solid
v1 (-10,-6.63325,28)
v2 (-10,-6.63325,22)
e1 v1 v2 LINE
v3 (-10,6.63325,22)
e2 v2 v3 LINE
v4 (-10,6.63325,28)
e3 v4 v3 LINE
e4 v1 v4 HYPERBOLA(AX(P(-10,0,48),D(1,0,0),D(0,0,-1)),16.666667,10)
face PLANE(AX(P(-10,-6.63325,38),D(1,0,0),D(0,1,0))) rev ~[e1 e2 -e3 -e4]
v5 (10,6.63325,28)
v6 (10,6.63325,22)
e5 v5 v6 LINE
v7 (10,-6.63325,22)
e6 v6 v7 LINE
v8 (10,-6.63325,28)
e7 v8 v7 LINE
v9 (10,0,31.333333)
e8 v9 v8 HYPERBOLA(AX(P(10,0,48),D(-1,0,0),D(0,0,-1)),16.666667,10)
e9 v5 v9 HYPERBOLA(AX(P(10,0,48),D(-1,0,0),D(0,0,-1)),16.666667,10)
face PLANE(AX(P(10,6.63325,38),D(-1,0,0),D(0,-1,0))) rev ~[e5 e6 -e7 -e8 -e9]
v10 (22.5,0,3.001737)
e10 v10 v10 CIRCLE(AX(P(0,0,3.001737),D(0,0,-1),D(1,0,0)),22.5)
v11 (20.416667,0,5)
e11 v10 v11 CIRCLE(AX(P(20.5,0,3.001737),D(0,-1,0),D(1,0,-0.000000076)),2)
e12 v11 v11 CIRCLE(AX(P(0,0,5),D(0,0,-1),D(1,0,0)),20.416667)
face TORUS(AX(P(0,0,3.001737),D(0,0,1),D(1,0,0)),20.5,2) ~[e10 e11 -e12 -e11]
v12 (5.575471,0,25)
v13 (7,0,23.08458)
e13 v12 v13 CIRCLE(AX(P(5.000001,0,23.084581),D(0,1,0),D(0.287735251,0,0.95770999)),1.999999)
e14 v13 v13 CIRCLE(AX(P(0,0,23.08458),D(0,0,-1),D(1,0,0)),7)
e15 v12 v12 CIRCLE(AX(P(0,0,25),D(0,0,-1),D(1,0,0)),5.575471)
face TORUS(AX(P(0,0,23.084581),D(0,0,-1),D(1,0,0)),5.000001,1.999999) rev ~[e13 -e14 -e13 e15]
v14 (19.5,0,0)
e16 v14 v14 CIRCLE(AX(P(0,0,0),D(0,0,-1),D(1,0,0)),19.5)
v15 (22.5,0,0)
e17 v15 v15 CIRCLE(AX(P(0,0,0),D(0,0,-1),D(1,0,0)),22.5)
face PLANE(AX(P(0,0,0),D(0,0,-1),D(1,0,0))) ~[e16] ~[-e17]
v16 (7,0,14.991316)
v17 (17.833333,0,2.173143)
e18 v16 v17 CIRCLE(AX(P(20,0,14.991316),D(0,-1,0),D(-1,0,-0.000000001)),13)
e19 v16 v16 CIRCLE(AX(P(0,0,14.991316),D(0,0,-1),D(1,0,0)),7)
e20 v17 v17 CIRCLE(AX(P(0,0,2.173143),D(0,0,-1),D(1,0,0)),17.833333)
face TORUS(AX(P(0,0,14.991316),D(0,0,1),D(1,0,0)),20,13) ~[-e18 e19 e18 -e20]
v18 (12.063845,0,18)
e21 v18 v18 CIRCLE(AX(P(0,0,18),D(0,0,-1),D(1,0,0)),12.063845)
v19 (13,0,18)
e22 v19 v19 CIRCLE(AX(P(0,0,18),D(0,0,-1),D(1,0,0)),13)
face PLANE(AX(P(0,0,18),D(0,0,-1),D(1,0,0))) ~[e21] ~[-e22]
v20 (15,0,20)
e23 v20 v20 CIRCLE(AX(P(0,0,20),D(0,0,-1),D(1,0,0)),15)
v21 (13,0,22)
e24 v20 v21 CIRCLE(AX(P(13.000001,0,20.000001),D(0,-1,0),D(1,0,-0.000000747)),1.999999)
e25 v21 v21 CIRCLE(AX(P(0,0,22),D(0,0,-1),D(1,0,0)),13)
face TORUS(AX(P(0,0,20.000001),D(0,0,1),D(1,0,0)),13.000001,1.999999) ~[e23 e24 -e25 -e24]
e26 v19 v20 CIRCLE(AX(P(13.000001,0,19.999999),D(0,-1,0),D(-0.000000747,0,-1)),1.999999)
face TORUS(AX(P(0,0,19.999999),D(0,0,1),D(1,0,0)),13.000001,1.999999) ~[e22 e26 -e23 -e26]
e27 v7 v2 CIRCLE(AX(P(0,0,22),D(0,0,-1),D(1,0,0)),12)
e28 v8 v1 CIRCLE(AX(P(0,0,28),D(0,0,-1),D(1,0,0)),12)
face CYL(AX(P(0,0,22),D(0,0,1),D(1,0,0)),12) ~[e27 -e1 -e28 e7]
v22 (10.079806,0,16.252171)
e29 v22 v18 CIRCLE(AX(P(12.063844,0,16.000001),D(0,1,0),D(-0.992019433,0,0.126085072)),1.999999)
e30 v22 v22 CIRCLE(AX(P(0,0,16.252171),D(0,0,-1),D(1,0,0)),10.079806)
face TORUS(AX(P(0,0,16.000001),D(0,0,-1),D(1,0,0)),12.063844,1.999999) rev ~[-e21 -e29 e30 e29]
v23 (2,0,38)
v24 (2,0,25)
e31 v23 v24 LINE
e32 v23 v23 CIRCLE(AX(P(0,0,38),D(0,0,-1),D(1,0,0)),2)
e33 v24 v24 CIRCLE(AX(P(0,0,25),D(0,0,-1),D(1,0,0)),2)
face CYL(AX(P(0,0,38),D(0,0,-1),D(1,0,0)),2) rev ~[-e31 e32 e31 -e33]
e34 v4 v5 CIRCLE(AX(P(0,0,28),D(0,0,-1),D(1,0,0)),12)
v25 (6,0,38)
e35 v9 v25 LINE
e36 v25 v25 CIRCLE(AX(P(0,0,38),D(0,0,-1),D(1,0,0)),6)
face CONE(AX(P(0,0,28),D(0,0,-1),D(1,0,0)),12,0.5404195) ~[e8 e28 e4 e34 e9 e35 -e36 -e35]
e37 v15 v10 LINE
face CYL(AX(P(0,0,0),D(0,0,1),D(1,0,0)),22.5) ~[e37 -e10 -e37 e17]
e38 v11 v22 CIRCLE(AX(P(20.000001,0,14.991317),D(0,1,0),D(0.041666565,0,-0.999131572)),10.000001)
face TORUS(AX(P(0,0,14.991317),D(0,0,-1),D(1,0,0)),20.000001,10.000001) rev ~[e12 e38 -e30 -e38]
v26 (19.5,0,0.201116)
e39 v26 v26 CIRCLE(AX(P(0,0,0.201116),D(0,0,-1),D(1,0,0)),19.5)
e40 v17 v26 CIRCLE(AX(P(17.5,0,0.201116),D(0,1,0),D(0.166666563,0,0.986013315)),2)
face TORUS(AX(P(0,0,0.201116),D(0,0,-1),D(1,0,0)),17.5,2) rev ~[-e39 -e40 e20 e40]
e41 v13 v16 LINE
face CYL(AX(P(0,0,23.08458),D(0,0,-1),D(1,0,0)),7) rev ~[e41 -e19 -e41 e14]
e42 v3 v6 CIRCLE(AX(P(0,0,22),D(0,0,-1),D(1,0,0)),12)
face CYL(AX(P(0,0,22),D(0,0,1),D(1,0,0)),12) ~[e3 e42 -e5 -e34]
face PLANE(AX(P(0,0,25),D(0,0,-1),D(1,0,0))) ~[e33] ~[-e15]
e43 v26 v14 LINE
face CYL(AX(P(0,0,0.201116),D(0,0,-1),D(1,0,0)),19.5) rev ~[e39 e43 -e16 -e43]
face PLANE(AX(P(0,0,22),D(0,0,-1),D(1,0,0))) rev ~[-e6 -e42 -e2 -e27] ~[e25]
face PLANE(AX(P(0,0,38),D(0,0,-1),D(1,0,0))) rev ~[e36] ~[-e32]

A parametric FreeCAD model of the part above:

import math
import FreeCAD as App
import Part
import Sketcher
from FreeCAD import Vector

doc = App.newDocument("Part")
body = doc.addObject("PartDesign::Body", "Body")

# Sketch on XZ plane
sketch1 = doc.addObject("Sketcher::SketchObject", "Sketch")
body.addObject(sketch1)
sketch1.AttachmentSupport = (doc.XZ_Plane, [""])
sketch1.MapMode = "FlatFace"
sketch1.addGeometry([
    Part.LineSegment(Vector(19.5, 0, 0), Vector(22.5, 0, 0)),  # 0
    Part.LineSegment(Vector(22.5, 0, 0), Vector(22.5, 3.001737, 0)),  # 1
    Part.ArcOfCircle(Part.Circle(Vector(20.5, 3.001737, 0), Vector(0, 0, 1), 2), math.radians(-0.000004), math.radians(92.388015)),  # 2
    Part.ArcOfCircle(Part.Circle(Vector(20.000001, 14.991317, 0), Vector(0, 0, 1), 10.000001), math.radians(172.756561), math.radians(272.38801)),  # 3
    Part.ArcOfCircle(Part.Circle(Vector(12.063844, 16.000001, 0), Vector(0, 0, 1), 1.999999), math.radians(89.999968), math.radians(172.756578)),  # 4
    Part.LineSegment(Vector(12.063845, 18, 0), Vector(13, 18, 0)),  # 5
    Part.ArcOfCircle(Part.Circle(Vector(13.000001, 19.999999, 0), Vector(0, 0, 1), 1.999999), math.radians(-90.000043), math.radians(0.000043)),  # 6
    Part.ArcOfCircle(Part.Circle(Vector(13.000001, 20.000001, 0), Vector(0, 0, 1), 1.999999), math.radians(-0.000043), math.radians(90.000043)),  # 7
    Part.LineSegment(Vector(13, 22, 0), Vector(12, 22, 0)),  # 8
    Part.LineSegment(Vector(12, 22, 0), Vector(12, 28, 0)),  # 9
    Part.LineSegment(Vector(12, 28, 0), Vector(6, 38, 0)),  # 10
    Part.LineSegment(Vector(6, 38, 0), Vector(2, 38, 0)),  # 11
    Part.LineSegment(Vector(2, 38, 0), Vector(2, 25, 0)),  # 12
    Part.LineSegment(Vector(2, 25, 0), Vector(5.575471, 25, 0)),  # 13
    Part.ArcOfCircle(Part.Circle(Vector(5.000001, 23.084581, 0), Vector(0, 0, 1), 1.999999), math.radians(-0.00002), math.radians(73.277583)),  # 14
    Part.LineSegment(Vector(7, 23.08458, 0), Vector(7, 14.991316, 0)),  # 15
    Part.ArcOfCircle(Part.Circle(Vector(20, 14.991316, 0), Vector(0, 0, 1), 13), math.radians(-180), math.radians(-99.594071)),  # 16
    Part.ArcOfCircle(Part.Circle(Vector(17.5, 0.201116, 0), Vector(0, 0, 1), 2), math.radians(-0.000006), math.radians(80.405938)),  # 17
    Part.LineSegment(Vector(19.5, 0.201116, 0), Vector(19.5, 0, 0)),  # 18
], False)
sketch1.addConstraint([
    Sketcher.Constraint("Coincident", 0, 2, 1, 1),
    Sketcher.Constraint("Tangent", 1, 2, 2, 1),
    Sketcher.Constraint("Tangent", 2, 2, 3, 2),
    Sketcher.Constraint("Tangent", 3, 1, 4, 2),
    Sketcher.Constraint("Tangent", 4, 1, 5, 1),
    Sketcher.Constraint("Tangent", 5, 2, 6, 1),
    Sketcher.Constraint("Tangent", 6, 2, 7, 1),
    Sketcher.Constraint("Tangent", 7, 2, 8, 1),
    Sketcher.Constraint("Coincident", 8, 2, 9, 1),
    Sketcher.Constraint("Coincident", 9, 2, 10, 1),
    Sketcher.Constraint("Coincident", 10, 2, 11, 1),
    Sketcher.Constraint("Coincident", 11, 2, 12, 1),
    Sketcher.Constraint("Coincident", 12, 2, 13, 1),
    Sketcher.Constraint("Coincident", 13, 2, 14, 2),
    Sketcher.Constraint("Tangent", 14, 1, 15, 1),
    Sketcher.Constraint("Tangent", 15, 2, 16, 1),
    Sketcher.Constraint("Tangent", 16, 2, 17, 2),
    Sketcher.Constraint("Tangent", 17, 1, 18, 1),
    Sketcher.Constraint("Coincident", 18, 2, 0, 1),
    Sketcher.Constraint("Horizontal", 0),
    Sketcher.Constraint("Vertical", 1),
    Sketcher.Constraint("Horizontal", 5),
    Sketcher.Constraint("Horizontal", 8),
    Sketcher.Constraint("Vertical", 9),
    Sketcher.Constraint("Horizontal", 11),
    Sketcher.Constraint("Vertical", 12),
    Sketcher.Constraint("Horizontal", 13),
    Sketcher.Constraint("Vertical", 15),
    Sketcher.Constraint("Vertical", 18),
    Sketcher.Constraint("Coincident", 16, 3, 3, 3),
    Sketcher.Constraint("Equal", 2, 4),
    Sketcher.Constraint("Equal", 4, 6),
    Sketcher.Constraint("Equal", 6, 7),
    Sketcher.Constraint("Equal", 7, 14),
    Sketcher.Constraint("Equal", 14, 17),
    Sketcher.Constraint("PointOnObject", 0, 2, -1),
    Sketcher.Constraint("Horizontal", 7, 3, 6, 2),
    Sketcher.Constraint("Radius", 2, 2.0),
    Sketcher.Constraint("Radius", 3, 10.000001),
    Sketcher.Constraint("Radius", 16, 13.0),
    Sketcher.Constraint("DistanceX", 0, 1, 0, 2, 3.0),
    Sketcher.Constraint("DistanceX", 8, 2, 8, 1, 1.0),
    Sketcher.Constraint("DistanceX", 11, 2, 11, 1, 4.0),
    Sketcher.Constraint("DistanceY", 9, 1, 9, 2, 6.0),
    Sketcher.Constraint("DistanceY", 12, 2, 12, 1, 13.0),
    Sketcher.Constraint("DistanceX", -1, 1, 3, 3, 20.000001),
    Sketcher.Constraint("DistanceY", -1, 1, 4, 3, 16.000001),
    Sketcher.Constraint("DistanceX", -1, 1, 6, 3, 13.000001),
    Sketcher.Constraint("DistanceY", -1, 1, 2, 2, 5.0),
    Sketcher.Constraint("DistanceX", -1, 1, 10, 2, 6.0),
    Sketcher.Constraint("DistanceY", -1, 1, 10, 2, 38.0),
    Sketcher.Constraint("DistanceX", -1, 1, 2, 3, 20.5),
    Sketcher.Constraint("DistanceX", 13, 1, 13, 2, 3.575471),
])
revolution = doc.addObject("PartDesign::Revolution", "Revolution")
body.addObject(revolution)
revolution.Profile = sketch1
revolution.ReferenceAxis = (sketch1, ["V_Axis"])
revolution.Angle = 360

# Sketch on XY plane
sketch2 = doc.addObject("Sketcher::SketchObject", "Sketch001")
body.addObject(sketch2)
sketch2.AttachmentSupport = (doc.XY_Plane, [""])
sketch2.MapMode = "FlatFace"
sketch2.AttachmentOffset = App.Placement(Vector(0, 0, 38), App.Rotation())
sketch2.addGeometry([
    Part.ArcOfCircle(Part.Circle(Vector(-0.000007, 0.000002, 0), Vector(0, 0, 1), 12.000007), math.radians(-33.5573), math.radians(-0.000007)),  # 0
    Part.ArcOfCircle(Part.Circle(Vector(-0.000007, -0.000002, 0), Vector(0, 0, 1), 12.000007), math.radians(0.000007), math.radians(33.5573)),  # 1
    Part.LineSegment(Vector(10, 6.63325, 0), Vector(10, -6.63325, 0)),  # 2
    Part.LineSegment(Vector(-10, -6.63325, 0), Vector(-10, 6.63325, 0)),  # 3
    Part.ArcOfCircle(Part.Circle(Vector(0.000001, 0, 0), Vector(0, 0, 1), 12.000001), math.radians(146.442692), math.radians(213.557308)),  # 4
], False)
sketch2.addConstraint([
    Sketcher.Constraint("Tangent", 0, 2, 1, 1),
    Sketcher.Constraint("Coincident", 1, 2, 2, 1),
    Sketcher.Constraint("Coincident", 2, 2, 0, 1),
    Sketcher.Constraint("Coincident", 3, 1, 4, 2),
    Sketcher.Constraint("Coincident", 4, 1, 3, 2),
    Sketcher.Constraint("Vertical", 2),
    Sketcher.Constraint("Vertical", 3),
    Sketcher.Constraint("Coincident", 0, 3, -1, 1),
    Sketcher.Constraint("Coincident", 4, 3, -1, 1),
    Sketcher.Constraint("Equal", 0, 1),
    Sketcher.Constraint("Symmetric", 1, 2, 3, 1, -1, 1),
    Sketcher.Constraint("PointOnObject", 0, 2, -1),
    Sketcher.Constraint("Radius", 4, 12.000001),
    Sketcher.Constraint("DistanceX", -1, 1, 1, 2, 10.0),
])
pocket1 = doc.addObject("PartDesign::Pocket", "Pocket")
body.addObject(pocket1)
pocket1.Profile = sketch2
pocket1.Length = 16

doc.recompute()
